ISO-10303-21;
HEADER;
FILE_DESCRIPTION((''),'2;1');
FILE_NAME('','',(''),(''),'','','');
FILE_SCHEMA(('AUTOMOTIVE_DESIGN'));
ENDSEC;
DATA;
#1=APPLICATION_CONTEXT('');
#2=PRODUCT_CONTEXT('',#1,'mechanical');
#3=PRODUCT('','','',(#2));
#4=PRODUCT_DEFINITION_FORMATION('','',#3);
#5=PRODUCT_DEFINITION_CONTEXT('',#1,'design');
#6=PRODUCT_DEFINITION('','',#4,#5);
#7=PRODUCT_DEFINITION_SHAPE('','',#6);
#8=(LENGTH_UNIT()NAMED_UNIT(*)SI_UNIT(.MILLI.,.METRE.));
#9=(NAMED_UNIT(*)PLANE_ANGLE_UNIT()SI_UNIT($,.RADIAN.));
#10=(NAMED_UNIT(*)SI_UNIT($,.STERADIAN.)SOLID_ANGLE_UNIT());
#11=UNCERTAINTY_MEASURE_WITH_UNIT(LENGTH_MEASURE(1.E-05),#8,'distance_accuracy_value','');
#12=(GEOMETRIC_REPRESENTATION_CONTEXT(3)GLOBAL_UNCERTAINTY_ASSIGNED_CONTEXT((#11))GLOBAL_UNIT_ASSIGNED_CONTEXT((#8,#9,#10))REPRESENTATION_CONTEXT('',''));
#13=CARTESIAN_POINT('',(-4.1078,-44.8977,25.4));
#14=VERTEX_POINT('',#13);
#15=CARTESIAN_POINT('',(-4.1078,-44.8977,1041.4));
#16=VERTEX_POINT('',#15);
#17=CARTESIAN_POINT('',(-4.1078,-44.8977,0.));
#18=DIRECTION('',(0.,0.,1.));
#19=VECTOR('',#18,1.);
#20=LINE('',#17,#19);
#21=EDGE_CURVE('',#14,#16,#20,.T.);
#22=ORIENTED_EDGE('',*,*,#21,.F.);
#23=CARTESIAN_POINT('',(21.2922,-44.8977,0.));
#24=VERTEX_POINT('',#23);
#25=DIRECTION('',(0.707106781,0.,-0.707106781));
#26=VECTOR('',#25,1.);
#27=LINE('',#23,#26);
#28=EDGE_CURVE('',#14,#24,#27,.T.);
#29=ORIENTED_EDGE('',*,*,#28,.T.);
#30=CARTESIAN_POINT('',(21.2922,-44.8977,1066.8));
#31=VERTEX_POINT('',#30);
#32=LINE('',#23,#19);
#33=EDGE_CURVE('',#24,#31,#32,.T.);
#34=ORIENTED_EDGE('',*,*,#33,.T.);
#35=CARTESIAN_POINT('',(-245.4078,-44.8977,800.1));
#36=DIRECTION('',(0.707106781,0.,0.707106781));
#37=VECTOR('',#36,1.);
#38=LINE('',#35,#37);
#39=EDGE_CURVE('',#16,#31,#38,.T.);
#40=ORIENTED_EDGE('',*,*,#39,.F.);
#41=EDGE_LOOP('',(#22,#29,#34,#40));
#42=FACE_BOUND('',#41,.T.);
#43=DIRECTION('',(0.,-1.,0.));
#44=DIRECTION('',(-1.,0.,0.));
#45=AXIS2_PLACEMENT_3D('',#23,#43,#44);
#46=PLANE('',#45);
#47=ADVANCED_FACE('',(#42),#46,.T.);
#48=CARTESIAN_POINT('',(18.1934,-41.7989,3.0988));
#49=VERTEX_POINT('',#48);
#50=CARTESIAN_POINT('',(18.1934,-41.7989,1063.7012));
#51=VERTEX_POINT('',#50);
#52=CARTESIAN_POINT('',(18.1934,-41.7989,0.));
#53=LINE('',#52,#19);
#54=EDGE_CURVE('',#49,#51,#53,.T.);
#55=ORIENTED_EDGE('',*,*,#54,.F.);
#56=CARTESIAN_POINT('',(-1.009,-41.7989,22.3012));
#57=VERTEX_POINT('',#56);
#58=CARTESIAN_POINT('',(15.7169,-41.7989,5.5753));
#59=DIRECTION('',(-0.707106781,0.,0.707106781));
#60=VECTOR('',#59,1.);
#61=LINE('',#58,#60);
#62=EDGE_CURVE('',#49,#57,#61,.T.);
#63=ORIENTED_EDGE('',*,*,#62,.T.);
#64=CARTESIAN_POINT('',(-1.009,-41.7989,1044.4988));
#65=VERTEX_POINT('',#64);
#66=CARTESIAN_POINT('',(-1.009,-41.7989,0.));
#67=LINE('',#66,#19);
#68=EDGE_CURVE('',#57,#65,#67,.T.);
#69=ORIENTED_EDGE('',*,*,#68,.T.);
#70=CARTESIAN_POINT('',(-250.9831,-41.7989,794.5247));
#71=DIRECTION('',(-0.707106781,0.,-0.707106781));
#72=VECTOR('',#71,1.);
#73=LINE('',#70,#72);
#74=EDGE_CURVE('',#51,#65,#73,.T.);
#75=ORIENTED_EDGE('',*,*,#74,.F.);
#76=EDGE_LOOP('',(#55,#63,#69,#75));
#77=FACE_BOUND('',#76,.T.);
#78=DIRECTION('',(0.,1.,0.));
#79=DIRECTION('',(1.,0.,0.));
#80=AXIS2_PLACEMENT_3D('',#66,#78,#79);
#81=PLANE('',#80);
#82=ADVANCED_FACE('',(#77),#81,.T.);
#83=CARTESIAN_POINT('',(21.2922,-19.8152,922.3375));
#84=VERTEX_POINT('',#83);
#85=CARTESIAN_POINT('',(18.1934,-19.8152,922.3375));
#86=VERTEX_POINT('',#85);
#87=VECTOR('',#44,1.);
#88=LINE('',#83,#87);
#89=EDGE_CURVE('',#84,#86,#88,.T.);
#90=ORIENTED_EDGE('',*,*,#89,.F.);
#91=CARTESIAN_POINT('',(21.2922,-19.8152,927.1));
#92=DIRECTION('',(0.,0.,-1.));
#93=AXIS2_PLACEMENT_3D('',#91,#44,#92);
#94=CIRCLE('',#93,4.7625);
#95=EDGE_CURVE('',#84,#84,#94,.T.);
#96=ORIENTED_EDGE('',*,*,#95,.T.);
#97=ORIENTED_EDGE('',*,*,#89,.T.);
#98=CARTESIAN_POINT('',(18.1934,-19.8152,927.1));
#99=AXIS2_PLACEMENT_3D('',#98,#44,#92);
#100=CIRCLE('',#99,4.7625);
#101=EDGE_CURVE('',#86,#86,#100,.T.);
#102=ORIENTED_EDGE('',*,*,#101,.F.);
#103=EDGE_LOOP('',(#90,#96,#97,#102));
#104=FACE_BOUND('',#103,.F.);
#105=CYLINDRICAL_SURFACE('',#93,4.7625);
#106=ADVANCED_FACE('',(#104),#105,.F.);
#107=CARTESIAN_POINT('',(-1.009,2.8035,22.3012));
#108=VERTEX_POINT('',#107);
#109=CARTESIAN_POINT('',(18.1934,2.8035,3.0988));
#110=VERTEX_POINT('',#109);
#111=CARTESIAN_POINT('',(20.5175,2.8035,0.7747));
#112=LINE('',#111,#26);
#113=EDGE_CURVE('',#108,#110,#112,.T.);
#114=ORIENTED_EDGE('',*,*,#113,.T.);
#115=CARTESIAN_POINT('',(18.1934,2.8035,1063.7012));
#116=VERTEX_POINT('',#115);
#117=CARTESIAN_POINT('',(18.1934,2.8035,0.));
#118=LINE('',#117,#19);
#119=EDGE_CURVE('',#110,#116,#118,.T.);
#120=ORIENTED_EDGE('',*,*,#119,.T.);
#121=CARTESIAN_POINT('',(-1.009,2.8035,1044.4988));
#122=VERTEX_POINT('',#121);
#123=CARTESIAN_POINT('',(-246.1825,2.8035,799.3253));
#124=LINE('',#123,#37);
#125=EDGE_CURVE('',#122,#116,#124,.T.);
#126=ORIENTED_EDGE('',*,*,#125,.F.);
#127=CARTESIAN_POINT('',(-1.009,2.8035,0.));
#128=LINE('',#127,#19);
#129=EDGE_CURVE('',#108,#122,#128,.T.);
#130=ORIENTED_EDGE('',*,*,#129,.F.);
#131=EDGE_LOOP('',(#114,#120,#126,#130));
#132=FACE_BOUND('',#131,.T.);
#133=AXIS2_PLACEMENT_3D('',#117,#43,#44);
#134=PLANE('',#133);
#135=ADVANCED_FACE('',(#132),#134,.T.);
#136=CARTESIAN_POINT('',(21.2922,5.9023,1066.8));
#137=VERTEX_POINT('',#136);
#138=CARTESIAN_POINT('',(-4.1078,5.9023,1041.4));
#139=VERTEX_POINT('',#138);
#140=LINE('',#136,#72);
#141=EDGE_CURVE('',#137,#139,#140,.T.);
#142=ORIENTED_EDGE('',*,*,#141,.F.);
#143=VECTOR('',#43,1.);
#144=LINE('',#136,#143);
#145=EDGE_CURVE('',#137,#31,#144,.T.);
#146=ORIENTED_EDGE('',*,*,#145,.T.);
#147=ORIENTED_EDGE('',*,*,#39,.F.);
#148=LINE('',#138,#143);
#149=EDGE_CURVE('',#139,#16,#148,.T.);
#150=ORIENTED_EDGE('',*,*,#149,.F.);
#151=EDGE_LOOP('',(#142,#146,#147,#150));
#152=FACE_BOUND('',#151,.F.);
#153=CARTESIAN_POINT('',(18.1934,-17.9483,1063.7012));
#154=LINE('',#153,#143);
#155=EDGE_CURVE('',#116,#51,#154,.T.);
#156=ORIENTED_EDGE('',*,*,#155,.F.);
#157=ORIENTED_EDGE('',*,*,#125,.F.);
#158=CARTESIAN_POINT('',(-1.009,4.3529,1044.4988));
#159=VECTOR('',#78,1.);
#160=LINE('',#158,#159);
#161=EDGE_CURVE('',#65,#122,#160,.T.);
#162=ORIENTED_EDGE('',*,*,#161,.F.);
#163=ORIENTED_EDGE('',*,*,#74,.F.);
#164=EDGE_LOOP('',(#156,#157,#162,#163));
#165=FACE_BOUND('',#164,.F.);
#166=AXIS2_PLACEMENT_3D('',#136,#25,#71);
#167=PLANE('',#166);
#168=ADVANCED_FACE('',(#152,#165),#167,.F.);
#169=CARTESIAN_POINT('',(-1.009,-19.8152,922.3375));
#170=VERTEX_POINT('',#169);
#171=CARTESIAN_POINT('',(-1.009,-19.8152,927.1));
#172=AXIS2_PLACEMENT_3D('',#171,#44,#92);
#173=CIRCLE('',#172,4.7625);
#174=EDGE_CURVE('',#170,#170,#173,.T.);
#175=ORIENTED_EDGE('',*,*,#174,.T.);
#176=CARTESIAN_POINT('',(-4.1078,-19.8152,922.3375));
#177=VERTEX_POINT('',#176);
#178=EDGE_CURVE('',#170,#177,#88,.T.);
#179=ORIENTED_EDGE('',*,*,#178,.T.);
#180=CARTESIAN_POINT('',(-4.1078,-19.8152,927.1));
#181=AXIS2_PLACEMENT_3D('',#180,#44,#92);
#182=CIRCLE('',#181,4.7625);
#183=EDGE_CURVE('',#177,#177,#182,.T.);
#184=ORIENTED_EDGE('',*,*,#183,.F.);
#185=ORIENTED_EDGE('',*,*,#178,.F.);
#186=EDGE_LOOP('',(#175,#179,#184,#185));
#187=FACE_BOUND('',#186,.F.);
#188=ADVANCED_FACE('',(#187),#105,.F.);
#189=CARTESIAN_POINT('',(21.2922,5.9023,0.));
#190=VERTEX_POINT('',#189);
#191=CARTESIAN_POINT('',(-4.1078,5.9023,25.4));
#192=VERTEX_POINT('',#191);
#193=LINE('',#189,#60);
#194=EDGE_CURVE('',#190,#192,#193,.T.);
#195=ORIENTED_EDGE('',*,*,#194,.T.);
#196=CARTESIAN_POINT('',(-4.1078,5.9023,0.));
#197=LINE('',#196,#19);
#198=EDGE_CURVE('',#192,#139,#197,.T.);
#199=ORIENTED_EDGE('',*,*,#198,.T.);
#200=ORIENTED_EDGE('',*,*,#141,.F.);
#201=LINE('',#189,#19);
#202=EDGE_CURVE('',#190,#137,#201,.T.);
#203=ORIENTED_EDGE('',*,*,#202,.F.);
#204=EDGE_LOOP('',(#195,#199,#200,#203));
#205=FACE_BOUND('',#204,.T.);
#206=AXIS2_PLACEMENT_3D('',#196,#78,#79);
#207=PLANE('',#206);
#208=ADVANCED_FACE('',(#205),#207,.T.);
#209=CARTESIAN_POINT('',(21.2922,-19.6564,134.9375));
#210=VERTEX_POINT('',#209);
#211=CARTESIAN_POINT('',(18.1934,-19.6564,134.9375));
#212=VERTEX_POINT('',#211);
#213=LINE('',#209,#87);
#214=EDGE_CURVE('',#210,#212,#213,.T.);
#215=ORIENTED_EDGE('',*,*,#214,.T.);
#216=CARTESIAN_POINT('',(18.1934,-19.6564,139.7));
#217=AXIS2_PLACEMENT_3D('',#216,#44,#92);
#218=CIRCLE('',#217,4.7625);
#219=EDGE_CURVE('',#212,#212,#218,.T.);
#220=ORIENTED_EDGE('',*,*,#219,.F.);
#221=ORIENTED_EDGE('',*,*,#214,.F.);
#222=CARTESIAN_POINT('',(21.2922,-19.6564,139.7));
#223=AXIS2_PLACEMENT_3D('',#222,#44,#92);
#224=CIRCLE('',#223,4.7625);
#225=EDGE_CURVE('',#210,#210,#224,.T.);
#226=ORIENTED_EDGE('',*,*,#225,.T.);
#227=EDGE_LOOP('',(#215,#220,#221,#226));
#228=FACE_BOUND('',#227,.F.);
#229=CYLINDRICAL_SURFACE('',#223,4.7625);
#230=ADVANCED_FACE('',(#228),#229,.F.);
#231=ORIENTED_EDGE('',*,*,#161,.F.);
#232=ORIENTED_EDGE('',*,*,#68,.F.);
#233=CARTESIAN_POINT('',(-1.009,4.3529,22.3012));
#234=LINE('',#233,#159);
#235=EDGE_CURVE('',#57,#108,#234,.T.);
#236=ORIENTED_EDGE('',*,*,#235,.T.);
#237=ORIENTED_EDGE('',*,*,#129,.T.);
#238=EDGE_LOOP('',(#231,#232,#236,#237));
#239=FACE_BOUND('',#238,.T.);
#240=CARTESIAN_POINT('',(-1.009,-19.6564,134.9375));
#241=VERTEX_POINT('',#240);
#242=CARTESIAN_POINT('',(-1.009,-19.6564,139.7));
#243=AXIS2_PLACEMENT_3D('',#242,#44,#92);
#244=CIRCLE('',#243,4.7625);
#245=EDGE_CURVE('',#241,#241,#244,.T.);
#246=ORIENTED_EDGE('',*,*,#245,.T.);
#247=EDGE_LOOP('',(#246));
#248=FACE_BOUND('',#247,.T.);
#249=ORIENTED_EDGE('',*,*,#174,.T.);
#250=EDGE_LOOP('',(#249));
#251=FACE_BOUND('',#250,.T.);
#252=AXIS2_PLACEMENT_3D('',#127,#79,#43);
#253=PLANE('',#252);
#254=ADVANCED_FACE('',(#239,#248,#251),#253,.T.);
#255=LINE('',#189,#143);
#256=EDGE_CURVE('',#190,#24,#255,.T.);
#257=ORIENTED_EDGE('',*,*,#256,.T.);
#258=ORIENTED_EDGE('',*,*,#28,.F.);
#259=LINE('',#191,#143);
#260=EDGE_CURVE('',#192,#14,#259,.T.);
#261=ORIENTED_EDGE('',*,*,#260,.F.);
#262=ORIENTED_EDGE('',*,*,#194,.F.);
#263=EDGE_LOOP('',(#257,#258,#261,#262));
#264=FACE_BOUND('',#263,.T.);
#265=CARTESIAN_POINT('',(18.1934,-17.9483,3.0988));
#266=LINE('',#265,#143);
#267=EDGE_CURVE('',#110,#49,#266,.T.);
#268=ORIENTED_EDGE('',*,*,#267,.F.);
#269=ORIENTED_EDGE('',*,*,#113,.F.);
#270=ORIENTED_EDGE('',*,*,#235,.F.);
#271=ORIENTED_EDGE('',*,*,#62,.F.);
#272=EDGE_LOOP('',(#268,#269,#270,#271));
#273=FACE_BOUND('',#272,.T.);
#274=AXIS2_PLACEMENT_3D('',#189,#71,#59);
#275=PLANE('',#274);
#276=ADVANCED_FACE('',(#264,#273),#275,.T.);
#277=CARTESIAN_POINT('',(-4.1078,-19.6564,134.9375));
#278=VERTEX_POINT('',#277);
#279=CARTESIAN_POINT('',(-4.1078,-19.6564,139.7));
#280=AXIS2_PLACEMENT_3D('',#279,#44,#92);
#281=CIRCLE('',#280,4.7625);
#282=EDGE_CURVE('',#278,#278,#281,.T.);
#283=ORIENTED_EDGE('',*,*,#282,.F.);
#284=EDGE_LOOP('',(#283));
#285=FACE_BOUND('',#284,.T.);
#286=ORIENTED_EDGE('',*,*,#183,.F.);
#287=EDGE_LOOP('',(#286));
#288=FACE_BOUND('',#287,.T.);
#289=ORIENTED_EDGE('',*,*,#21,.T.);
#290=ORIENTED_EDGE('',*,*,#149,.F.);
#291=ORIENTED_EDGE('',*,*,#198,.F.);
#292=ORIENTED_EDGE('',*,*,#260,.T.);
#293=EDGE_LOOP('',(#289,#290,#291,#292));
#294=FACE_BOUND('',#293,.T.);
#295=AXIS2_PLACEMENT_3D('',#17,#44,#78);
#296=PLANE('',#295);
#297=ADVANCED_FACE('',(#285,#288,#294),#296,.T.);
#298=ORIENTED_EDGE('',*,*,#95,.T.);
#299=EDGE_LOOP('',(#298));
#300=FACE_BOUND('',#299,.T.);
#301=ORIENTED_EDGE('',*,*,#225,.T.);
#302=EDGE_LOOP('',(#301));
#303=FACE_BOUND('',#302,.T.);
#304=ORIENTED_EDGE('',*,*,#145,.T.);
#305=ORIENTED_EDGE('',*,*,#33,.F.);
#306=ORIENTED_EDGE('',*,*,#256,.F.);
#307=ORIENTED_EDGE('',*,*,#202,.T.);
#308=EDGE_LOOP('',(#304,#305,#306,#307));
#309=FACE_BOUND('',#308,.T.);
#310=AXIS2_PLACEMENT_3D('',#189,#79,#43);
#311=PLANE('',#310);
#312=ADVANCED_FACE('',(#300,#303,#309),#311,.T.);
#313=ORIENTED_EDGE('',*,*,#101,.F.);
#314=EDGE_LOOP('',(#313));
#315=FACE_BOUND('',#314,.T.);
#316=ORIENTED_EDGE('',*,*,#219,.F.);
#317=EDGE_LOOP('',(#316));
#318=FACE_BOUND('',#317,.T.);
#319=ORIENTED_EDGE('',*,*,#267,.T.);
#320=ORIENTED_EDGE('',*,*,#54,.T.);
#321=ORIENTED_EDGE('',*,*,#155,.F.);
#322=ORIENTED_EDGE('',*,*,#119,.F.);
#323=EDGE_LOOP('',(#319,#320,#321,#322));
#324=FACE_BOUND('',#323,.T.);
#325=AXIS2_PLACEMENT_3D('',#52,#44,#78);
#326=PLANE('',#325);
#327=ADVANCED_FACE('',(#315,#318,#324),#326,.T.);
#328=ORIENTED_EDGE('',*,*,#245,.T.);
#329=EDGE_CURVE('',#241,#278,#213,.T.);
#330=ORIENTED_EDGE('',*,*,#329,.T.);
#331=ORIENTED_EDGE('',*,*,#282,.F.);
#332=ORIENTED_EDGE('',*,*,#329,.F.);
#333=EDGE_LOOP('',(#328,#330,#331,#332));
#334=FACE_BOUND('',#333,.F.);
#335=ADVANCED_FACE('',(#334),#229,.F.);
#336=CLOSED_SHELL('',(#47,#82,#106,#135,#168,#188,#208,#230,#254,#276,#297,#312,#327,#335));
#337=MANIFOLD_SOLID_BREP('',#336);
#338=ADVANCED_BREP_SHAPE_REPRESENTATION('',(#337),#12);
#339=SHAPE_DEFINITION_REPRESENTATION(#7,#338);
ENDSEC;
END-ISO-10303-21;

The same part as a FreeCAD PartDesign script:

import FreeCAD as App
import Part
import Sketcher

V = App.Vector
Q = App.Units.Quantity

doc = App.newDocument("Part")
params = doc.addObject("Spreadsheet::Sheet", "Params")
for row, (alias, value) in enumerate([
    ("sketch1_width", "1 in"),
    ("sketch1_height", "2 in"),
    ("pad1_length", "42 in"),
    ("sketch2_width", "1 in"),
    ("pocket1_length", "42 in"),
    ("sketch3_width", "1 in"),
    ("pocket2_length", "42 in"),
    ("sketch4_diameter", "0.375 in"),
    ("hole_diameter", "0.375 in"),
], start=1):
    params.set(f"A{row}", alias)
    params.set(f"B{row}", "=" + value)
    params.setAlias(f"B{row}", alias)

body = doc.addObject("PartDesign::Body", "Body")

# Sketch on XY plane
sketch1 = doc.addObject("Sketcher::SketchObject", "Sketch")
body.addObject(sketch1)
sketch1.AttachmentSupport = (doc.XY_Plane, [""])
sketch1.MapMode = "FlatFace"
sketch1.addGeometry(Part.LineSegment(V(21, 6, 0), V(-4, 6, 0)), False)
sketch1.addGeometry(Part.LineSegment(V(-4, 6, 0), V(-4, -45, 0)), False)
sketch1.addGeometry(Part.LineSegment(V(-4, -45, 0), V(21, -45, 0)), False)
sketch1.addGeometry(Part.LineSegment(V(21, -45, 0), V(21, 6, 0)), False)
sketch1.addGeometry(Part.LineSegment(V(-1, 3, 0), V(18, 3, 0)), False)
sketch1.addGeometry(Part.LineSegment(V(18, 3, 0), V(18, -42, 0)), False)
sketch1.addGeometry(Part.LineSegment(V(18, -42, 0), V(-1, -42, 0)), False)
sketch1.addGeometry(Part.LineSegment(V(-1, -42, 0), V(-1, 3, 0)), False)
sketch1.addConstraint(Sketcher.Constraint("Coincident", 0, 2, 1, 1))
sketch1.addConstraint(Sketcher.Constraint("Coincident", 1, 2, 2, 1))
sketch1.addConstraint(Sketcher.Constraint("Coincident", 2, 2, 3, 1))
sketch1.addConstraint(Sketcher.Constraint("Coincident", 3, 2, 0, 1))
sketch1.addConstraint(Sketcher.Constraint("Coincident", 4, 2, 5, 1))
sketch1.addConstraint(Sketcher.Constraint("Coincident", 5, 2, 6, 1))
sketch1.addConstraint(Sketcher.Constraint("Coincident", 6, 2, 7, 1))
sketch1.addConstraint(Sketcher.Constraint("Coincident", 7, 2, 4, 1))
sketch1.addConstraint(Sketcher.Constraint("Horizontal", 0))
sketch1.addConstraint(Sketcher.Constraint("Vertical", 1))
sketch1.addConstraint(Sketcher.Constraint("Horizontal", 2))
sketch1.addConstraint(Sketcher.Constraint("Vertical", 3))
sketch1.addConstraint(Sketcher.Constraint("Horizontal", 4))
sketch1.addConstraint(Sketcher.Constraint("Vertical", 5))
sketch1.addConstraint(Sketcher.Constraint("Horizontal", 6))
sketch1.addConstraint(Sketcher.Constraint("Vertical", 7))
sketch1.addConstraint(Sketcher.Constraint("DistanceX", 0, 2, 0, 1, Q("1 in")))
sketch1.addConstraint(Sketcher.Constraint("DistanceY", 1, 2, 1, 1, Q("2 in")))
sketch1.addConstraint(Sketcher.Constraint("DistanceX", 4, 2, 3, 2, Q("0.122 in")))
sketch1.addConstraint(Sketcher.Constraint("DistanceY", 4, 2, 3, 2, Q("0.122 in")))
sketch1.addConstraint(Sketcher.Constraint("DistanceY", 2, 2, 5, 2, Q("0.122 in")))
sketch1.addConstraint(Sketcher.Constraint("DistanceX", 1, 2, 6, 2, Q("0.122 in")))
sketch1.addConstraint(Sketcher.Constraint("DistanceX", 0, 2, -1, 1, Q("4.1078 mm")))
sketch1.addConstraint(Sketcher.Constraint("DistanceY", -1, 1, 0, 2, Q("5.9023 mm")))
sketch1.setExpression("Constraints[16]", "Params.sketch1_width")
sketch1.setExpression("Constraints[17]", "Params.sketch1_height")
pad1 = doc.addObject("PartDesign::Pad", "Pad")
body.addObject(pad1)
pad1.Profile = sketch1
pad1.setExpression("Length", "Params.pad1_length")

# Sketch on XZ plane
sketch2 = doc.addObject("Sketcher::SketchObject", "Sketch001")
body.addObject(sketch2)
sketch2.AttachmentSupport = (doc.XZ_Plane, [""])
sketch2.MapMode = "FlatFace"
sketch2.AttachmentOffset = App.Placement(V(0, 0, -5.9023), App.Rotation())
sketch2.addGeometry(Part.LineSegment(V(-4, 25, 0), V(21, 0, 0)), False)
sketch2.addGeometry(Part.LineSegment(V(21, 0, 0), V(-4, 0, 0)), False)
sketch2.addGeometry(Part.LineSegment(V(-4, 0, 0), V(-4, 25, 0)), False)
sketch2.addConstraint(Sketcher.Constraint("Coincident", 0, 2, 1, 1))
sketch2.addConstraint(Sketcher.Constraint("Coincident", 1, 2, 2, 1))
sketch2.addConstraint(Sketcher.Constraint("Coincident", 2, 2, 0, 1))
sketch2.addConstraint(Sketcher.Constraint("Horizontal", 1))
sketch2.addConstraint(Sketcher.Constraint("Vertical", 2))
sketch2.addConstraint(Sketcher.Constraint("PointOnObject", 0, 2, -1))
sketch2.addConstraint(Sketcher.Constraint("Equal", 1, 2))
sketch2.addConstraint(Sketcher.Constraint("DistanceX", 1, 2, 1, 1, Q("1 in")))
sketch2.addConstraint(Sketcher.Constraint("DistanceX", -1, 1, 0, 2, Q("21.2922 mm")))
sketch2.setExpression("Constraints[7]", "Params.sketch2_width")
pocket1 = doc.addObject("PartDesign::Pocket", "Pocket")
body.addObject(pocket1)
pocket1.Profile = sketch2
pocket1.setExpression("Length", "Params.pocket1_length")
pocket1.Reversed = True

# Sketch on XZ plane
sketch3 = doc.addObject("Sketcher::SketchObject", "Sketch002")
body.addObject(sketch3)
sketch3.AttachmentSupport = (doc.XZ_Plane, [""])
sketch3.MapMode = "FlatFace"
sketch3.AttachmentOffset = App.Placement(V(0, 0, -5.9023), App.Rotation())
sketch3.addGeometry(Part.LineSegment(V(21, 1067, 0), V(-4, 1041, 0)), False)
sketch3.addGeometry(Part.LineSegment(V(-4, 1041, 0), V(-4, 1067, 0)), False)
sketch3.addGeometry(Part.LineSegment(V(-4, 1067, 0), V(21, 1067, 0)), False)
sketch3.addConstraint(Sketcher.Constraint("Coincident", 0, 2, 1, 1))
sketch3.addConstraint(Sketcher.Constraint("Coincident", 1, 2, 2, 1))
sketch3.addConstraint(Sketcher.Constraint("Coincident", 2, 2, 0, 1))
sketch3.addConstraint(Sketcher.Constraint("Vertical", 1))
sketch3.addConstraint(Sketcher.Constraint("Horizontal", 2))
sketch3.addConstraint(Sketcher.Constraint("Equal", 2, 1))
sketch3.addConstraint(Sketcher.Constraint("DistanceX", 2, 1, 2, 2, Q("1 in")))
sketch3.addConstraint(Sketcher.Constraint("DistanceY", -1, 1, 0, 2, Q("41 in")))
sketch3.addConstraint(Sketcher.Constraint("DistanceX", 0, 2, -1, 1, Q("4.1078 mm")))
sketch3.setExpression("Constraints[6]", "Params.sketch3_width")
pocket2 = doc.addObject("PartDesign::Pocket", "Pocket001")
body.addObject(pocket2)
pocket2.Profile = sketch3
pocket2.setExpression("Length", "Params.pocket2_length")
pocket2.Reversed = True

# Sketch on YZ plane
sketch4 = doc.addObject("Sketcher::SketchObject", "Sketch003")
body.addObject(sketch4)
sketch4.AttachmentSupport = (doc.YZ_Plane, [""])
sketch4.MapMode = "FlatFace"
sketch4.AttachmentOffset = App.Placement(V(0, 0, 21.2922), App.Rotation())
sketch4.addGeometry(Part.Circle(V(-19.8, 927.1, 0), V(0, 0, 1), 4.8), False)
sketch4.addGeometry(Part.Circle(V(-19.7, 139.7, 0), V(0, 0, 1), 4.8), False)
sketch4.addConstraint(Sketcher.Constraint("Equal", 0, 1))
sketch4.addConstraint(Sketcher.Constraint("Diameter", 0, Q("0.375 in")))
sketch4.addConstraint(Sketcher.Constraint("DistanceY", 1, 3, 0, 3, Q("31 in")))
sketch4.addConstraint(Sketcher.Constraint("DistanceY", -1, 1, 0, 3, Q("36.5 in")))
sketch4.addConstraint(Sketcher.Constraint("DistanceX", 0, 3, -1, 1, Q("19.8152 mm")))
sketch4.addConstraint(Sketcher.Constraint("DistanceX", 1, 3, -1, 1, Q("19.6564 mm")))
sketch4.setExpression("Constraints[1]", "Params.sketch4_diameter")
doc.recompute()
hole = doc.addObject("PartDesign::Hole", "Hole")
body.addObject(hole)
hole.Profile = sketch4
hole.ThreadType = "None"
hole.setExpression("Diameter", "Params.hole_diameter")
hole.DepthType = "ThroughAll"

doc.recompute()
